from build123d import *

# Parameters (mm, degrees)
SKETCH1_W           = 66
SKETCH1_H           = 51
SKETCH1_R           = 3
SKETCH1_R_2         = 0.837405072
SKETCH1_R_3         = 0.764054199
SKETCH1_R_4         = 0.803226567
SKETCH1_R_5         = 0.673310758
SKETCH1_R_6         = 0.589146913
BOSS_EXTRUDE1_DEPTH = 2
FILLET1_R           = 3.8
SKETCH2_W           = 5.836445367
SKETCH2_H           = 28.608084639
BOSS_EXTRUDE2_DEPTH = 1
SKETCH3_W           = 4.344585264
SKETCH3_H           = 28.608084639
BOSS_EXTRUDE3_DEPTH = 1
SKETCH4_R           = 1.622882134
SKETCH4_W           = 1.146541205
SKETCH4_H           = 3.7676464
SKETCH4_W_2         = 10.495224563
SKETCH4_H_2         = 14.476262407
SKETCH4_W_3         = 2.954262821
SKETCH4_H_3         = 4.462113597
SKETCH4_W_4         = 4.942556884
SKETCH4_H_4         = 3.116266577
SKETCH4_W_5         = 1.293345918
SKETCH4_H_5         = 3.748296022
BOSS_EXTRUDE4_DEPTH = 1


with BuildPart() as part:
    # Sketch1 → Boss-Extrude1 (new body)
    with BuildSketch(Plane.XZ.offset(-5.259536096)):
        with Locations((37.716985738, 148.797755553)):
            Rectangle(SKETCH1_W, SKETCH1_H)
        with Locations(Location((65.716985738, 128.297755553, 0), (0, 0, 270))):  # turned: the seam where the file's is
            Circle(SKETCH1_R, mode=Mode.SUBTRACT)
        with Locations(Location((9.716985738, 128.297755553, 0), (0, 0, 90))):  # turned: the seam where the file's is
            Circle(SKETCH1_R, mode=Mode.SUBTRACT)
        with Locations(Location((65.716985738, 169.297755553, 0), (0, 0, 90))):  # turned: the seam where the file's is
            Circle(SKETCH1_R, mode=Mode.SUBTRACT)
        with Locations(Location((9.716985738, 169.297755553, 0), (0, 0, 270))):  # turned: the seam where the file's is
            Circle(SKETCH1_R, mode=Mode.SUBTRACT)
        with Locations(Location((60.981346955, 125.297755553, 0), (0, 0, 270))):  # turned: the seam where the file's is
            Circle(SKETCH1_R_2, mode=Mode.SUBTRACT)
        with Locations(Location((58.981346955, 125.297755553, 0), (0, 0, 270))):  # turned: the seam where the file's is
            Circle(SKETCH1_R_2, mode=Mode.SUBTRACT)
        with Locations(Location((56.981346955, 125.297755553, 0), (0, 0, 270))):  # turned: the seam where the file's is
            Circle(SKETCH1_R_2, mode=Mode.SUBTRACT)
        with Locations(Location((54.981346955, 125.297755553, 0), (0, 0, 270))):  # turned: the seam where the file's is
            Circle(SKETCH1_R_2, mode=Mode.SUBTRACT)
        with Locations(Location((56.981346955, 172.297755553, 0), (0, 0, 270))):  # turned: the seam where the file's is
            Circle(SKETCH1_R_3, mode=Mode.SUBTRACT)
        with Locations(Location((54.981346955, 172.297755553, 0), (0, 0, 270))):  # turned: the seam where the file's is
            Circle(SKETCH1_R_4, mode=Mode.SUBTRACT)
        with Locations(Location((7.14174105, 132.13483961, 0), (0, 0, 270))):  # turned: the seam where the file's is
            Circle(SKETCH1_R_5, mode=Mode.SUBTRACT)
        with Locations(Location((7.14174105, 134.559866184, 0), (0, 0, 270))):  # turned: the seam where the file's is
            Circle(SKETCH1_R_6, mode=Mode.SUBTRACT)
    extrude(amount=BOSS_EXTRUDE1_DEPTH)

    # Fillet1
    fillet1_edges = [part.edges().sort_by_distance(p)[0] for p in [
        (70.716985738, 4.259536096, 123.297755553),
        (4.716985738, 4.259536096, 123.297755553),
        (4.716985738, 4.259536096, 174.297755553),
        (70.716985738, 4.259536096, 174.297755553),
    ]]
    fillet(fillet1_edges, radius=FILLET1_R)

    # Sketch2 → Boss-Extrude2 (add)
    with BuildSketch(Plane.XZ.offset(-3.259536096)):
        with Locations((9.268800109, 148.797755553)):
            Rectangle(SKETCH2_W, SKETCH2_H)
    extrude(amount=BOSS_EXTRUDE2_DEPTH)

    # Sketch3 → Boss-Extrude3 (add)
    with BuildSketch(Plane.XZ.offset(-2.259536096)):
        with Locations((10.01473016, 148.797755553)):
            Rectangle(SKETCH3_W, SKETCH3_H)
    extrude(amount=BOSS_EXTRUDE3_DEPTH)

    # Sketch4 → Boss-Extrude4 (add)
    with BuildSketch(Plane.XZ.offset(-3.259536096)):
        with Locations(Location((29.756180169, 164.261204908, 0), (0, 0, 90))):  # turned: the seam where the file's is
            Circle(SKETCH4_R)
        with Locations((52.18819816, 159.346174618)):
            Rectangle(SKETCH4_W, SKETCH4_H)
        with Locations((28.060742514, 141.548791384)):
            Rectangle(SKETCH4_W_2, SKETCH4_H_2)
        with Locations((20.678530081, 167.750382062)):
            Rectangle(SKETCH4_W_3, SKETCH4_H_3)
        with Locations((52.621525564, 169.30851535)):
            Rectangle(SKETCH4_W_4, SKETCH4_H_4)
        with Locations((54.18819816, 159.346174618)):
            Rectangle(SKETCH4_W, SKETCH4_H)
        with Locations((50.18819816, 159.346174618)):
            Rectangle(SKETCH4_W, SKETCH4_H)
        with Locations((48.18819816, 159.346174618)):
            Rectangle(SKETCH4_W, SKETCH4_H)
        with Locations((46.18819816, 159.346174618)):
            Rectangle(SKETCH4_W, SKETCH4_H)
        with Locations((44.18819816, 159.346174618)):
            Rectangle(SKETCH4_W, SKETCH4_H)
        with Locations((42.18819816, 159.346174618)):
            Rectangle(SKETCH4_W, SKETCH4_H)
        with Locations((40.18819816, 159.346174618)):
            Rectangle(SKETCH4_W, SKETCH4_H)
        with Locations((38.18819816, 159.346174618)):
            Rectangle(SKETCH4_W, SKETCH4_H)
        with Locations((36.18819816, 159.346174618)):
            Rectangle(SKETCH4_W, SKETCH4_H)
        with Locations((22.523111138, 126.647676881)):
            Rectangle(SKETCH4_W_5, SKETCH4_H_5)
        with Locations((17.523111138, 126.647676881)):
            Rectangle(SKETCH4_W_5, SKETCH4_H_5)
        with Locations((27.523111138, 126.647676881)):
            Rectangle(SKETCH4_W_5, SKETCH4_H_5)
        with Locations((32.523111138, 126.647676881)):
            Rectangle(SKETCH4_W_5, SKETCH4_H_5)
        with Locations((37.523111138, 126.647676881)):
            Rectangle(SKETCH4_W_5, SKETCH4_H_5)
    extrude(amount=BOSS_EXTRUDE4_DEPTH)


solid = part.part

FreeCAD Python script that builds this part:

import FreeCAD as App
import Part
import Sketcher
from FreeCAD import Vector
Q = App.Units.Quantity


def edges_at(feature, points):
    """Names of the edges that pass closest to the given points."""
    edges = feature.Shape.Edges
    near = lambda p: min(range(len(edges)), key=lambda i: edges[i].distToShape(Part.Vertex(*p))[0])
    return sorted({f"Edge{near(p) + 1}" for p in points})


def add_polygon(sketch, points):
    """Adds a closed chain of lines whose ends are joined by coincident constraints."""
    first, n = sketch.GeometryCount, len(points)
    for a, b in zip(points, points[1:] + points[:1]):
        sketch.addGeometry(Part.LineSegment(App.Vector(*a, 0), App.Vector(*b, 0)), False)
    for i in range(n):
        sketch.addConstraint(Sketcher.Constraint("Coincident", first + i, 2, first + (i + 1) % n, 1))

doc = App.newDocument("Part")
body = doc.addObject("PartDesign::Body", "Body")

# Sketch on XZ plane
sketch1 = doc.addObject("Sketcher::SketchObject", "Sketch")
body.addObject(sketch1)
sketch1.AttachmentSupport = (doc.XZ_Plane, [""])
sketch1.MapMode = "FlatFace"
sketch1.AttachmentOffset = App.Placement(Vector(0, 0, -5.259536), App.Rotation())
add_polygon(sketch1, [(4.7, 174.3), (4.7, 123.3), (70.7, 123.3), (70.7, 174.3)])  # lines 0-3
sketch1.addGeometry(Part.Circle(Vector(9.7, 128.3, 0), Vector(0, 0, 1), 3), False)  # 4
sketch1.addGeometry(Part.Circle(Vector(7.1, 132.1, 0), Vector(0, 0, 1), 0.7), False)  # 5
sketch1.addGeometry(Part.Circle(Vector(7.1, 134.6, 0), Vector(0, 0, 1), 0.6), False)  # 6
sketch1.addGeometry(Part.Circle(Vector(55, 125.3, 0), Vector(0, 0, 1), 0.8), False)  # 7
sketch1.addGeometry(Part.Circle(Vector(57, 125.3, 0), Vector(0, 0, 1), 0.8), False)  # 8
sketch1.addGeometry(Part.Circle(Vector(59, 125.3, 0), Vector(0, 0, 1), 0.8), False)  # 9
sketch1.addGeometry(Part.Circle(Vector(61, 125.3, 0), Vector(0, 0, 1), 0.8), False)  # 10
sketch1.addGeometry(Part.Circle(Vector(65.7, 128.3, 0), Vector(0, 0, 1), 3), False)  # 11
sketch1.addGeometry(Part.Circle(Vector(9.7, 169.3, 0), Vector(0, 0, 1), 3), False)  # 12
sketch1.addGeometry(Part.Circle(Vector(55, 172.3, 0), Vector(0, 0, 1), 0.8), False)  # 13
sketch1.addGeometry(Part.Circle(Vector(57, 172.3, 0), Vector(0, 0, 1), 0.8), False)  # 14
sketch1.addGeometry(Part.Circle(Vector(65.7, 169.3, 0), Vector(0, 0, 1), 3), False)  # 15
sketch1.addConstraint([
    Sketcher.Constraint("Vertical", 0),
    Sketcher.Constraint("Horizontal", 1),
    Sketcher.Constraint("Vertical", 2),
    Sketcher.Constraint("Horizontal", 3),
    Sketcher.Constraint("Equal", 7, 8),
    Sketcher.Constraint("Equal", 8, 9),
    Sketcher.Constraint("Equal", 9, 10),
    Sketcher.Constraint("Equal", 4, 11),
    Sketcher.Constraint("Equal", 11, 12),
    Sketcher.Constraint("Equal", 12, 15),
    Sketcher.Constraint("Horizontal", 7, 3, 8, 3),
    Sketcher.Constraint("Horizontal", 8, 3, 9, 3),
    Sketcher.Constraint("Horizontal", 9, 3, 10, 3),
    Sketcher.Constraint("Horizontal", 4, 3, 11, 3),
    Sketcher.Constraint("Horizontal", 13, 3, 14, 3),
    Sketcher.Constraint("Horizontal", 12, 3, 15, 3),
    Sketcher.Constraint("Vertical", 5, 3, 6, 3),
    Sketcher.Constraint("Vertical", 4, 3, 12, 3),
    Sketcher.Constraint("Vertical", 7, 3, 13, 3),
    Sketcher.Constraint("Vertical", 8, 3, 14, 3),
    Sketcher.Constraint("Vertical", 11, 3, 15, 3),
    Sketcher.Constraint("Diameter", 4, Q("6 mm")),
    Sketcher.Constraint("DistanceX", 1, 1, 1, 2, Q("66 mm")),
    Sketcher.Constraint("DistanceY", 0, 2, 0, 1, Q("51 mm")),
    Sketcher.Constraint("DistanceY", 7, 3, 4, 3, Q("3 mm")),
    Sketcher.Constraint("DistanceX", 7, 3, 8, 3, Q("2 mm")),
    Sketcher.Constraint("DistanceX", 8, 3, 9, 3, Q("2 mm")),
    Sketcher.Constraint("DistanceX", 9, 3, 10, 3, Q("2 mm")),
    Sketcher.Constraint("DistanceX", 4, 3, 11, 3, Q("56 mm")),
    Sketcher.Constraint("DistanceY", 4, 3, 12, 3, Q("41 mm")),
    Sketcher.Constraint("DistanceY", 11, 3, 13, 3, Q("44 mm")),
    Sketcher.Constraint("DistanceX", 0, 2, 4, 3, Q("5 mm")),
    Sketcher.Constraint("DistanceY", 0, 2, 4, 3, Q("5 mm")),
    Sketcher.Constraint("Diameter", 5, Q("1.346622 mm")),
    Sketcher.Constraint("Diameter", 7, Q("1.67481 mm")),
    Sketcher.Constraint("Diameter", 14, Q("1.528108 mm")),
    Sketcher.Constraint("Diameter", 6, Q("1.178294 mm")),
    Sketcher.Constraint("Diameter", 13, Q("1.606453 mm")),
    Sketcher.Constraint("DistanceX", -1, 1, 5, 3, Q("7.141741 mm")),
    Sketcher.Constraint("DistanceY", -1, 1, 5, 3, Q("132.13484 mm")),
    Sketcher.Constraint("DistanceY", 4, 3, 6, 3, Q("6.262111 mm")),
    Sketcher.Constraint("DistanceX", 4, 3, 7, 3, Q("45.264361 mm")),
    Sketcher.Constraint("DistanceX", -1, 1, 4, 3, Q("9.716986 mm")),
    Sketcher.Constraint("DistanceY", -1, 1, 4, 3, Q("128.297756 mm")),
])
pad1 = doc.addObject("PartDesign::Pad", "Pad")
body.addObject(pad1)
pad1.Profile = sketch1
pad1.Length = 2
doc.recompute()

fillet = doc.addObject("PartDesign::Fillet", "Fillet")
body.addObject(fillet)
fillet.Base = (pad1, edges_at(pad1, [
    (70.717, 4.26, 123.298),
    (4.717, 4.26, 123.298),
    (4.717, 4.26, 174.298),
    (70.717, 4.26, 174.298),
]))
fillet.Radius = 3.8

# Sketch on XZ plane
sketch2 = doc.addObject("Sketcher::SketchObject", "Sketch001")
body.addObject(sketch2)
sketch2.AttachmentSupport = (doc.XZ_Plane, [""])
sketch2.MapMode = "FlatFace"
sketch2.AttachmentOffset = App.Placement(Vector(0, 0, -3.259536), App.Rotation())
add_polygon(sketch2, [(6, 163), (6, 134), (12, 134), (12, 163)])  # lines 0-3
sketch2.addConstraint([
    Sketcher.Constraint("Vertical", 0),
    Sketcher.Constraint("Horizontal", 1),
    Sketcher.Constraint("Vertical", 2),
    Sketcher.Constraint("Horizontal", 3),
    Sketcher.Constraint("DistanceX", 1, 1, 1, 2, Q("5.836445 mm")),
    Sketcher.Constraint("DistanceY", 0, 2, 0, 1, Q("28.608085 mm")),
    Sketcher.Constraint("DistanceX", -1, 1, 0, 2, Q("6.350577 mm")),
    Sketcher.Constraint("DistanceY", -1, 1, 0, 2, Q("134.493713 mm")),
])
pad2 = doc.addObject("PartDesign::Pad", "Pad001")
body.addObject(pad2)
pad2.Profile = sketch2
pad2.Length = 1

# Sketch on XZ plane
sketch3 = doc.addObject("Sketcher::SketchObject", "Sketch002")
body.addObject(sketch3)
sketch3.AttachmentSupport = (doc.XZ_Plane, [""])
sketch3.MapMode = "FlatFace"
sketch3.AttachmentOffset = App.Placement(Vector(0, 0, -2.259536), App.Rotation())
add_polygon(sketch3, [(7.8, 163.1), (7.8, 134.5), (12.2, 134.5), (12.2, 163.1)])  # lines 0-3
sketch3.addConstraint([
    Sketcher.Constraint("Vertical", 0),
    Sketcher.Constraint("Horizontal", 1),
    Sketcher.Constraint("Vertical", 2),
    Sketcher.Constraint("Horizontal", 3),
    Sketcher.Constraint("DistanceX", 1, 1, 1, 2, Q("4.344585 mm")),
    Sketcher.Constraint("DistanceY", 0, 2, 0, 1, Q("28.608085 mm")),
    Sketcher.Constraint("DistanceX", -1, 1, 0, 2, Q("7.842438 mm")),
    Sketcher.Constraint("DistanceY", -1, 1, 0, 2, Q("134.493713 mm")),
])
pad3 = doc.addObject("PartDesign::Pad", "Pad002")
body.addObject(pad3)
pad3.Profile = sketch3
pad3.Length = 1

# Sketch on XZ plane
sketch4 = doc.addObject("Sketcher::SketchObject", "Sketch003")
body.addObject(sketch4)
sketch4.AttachmentSupport = (doc.XZ_Plane, [""])
sketch4.MapMode = "FlatFace"
sketch4.AttachmentOffset = App.Placement(Vector(0, 0, -3.259536), App.Rotation())
sketch4.addGeometry(Part.Circle(Vector(29.8, 164.3, 0), Vector(0, 0, 1), 1.6), False)  # 0
add_polygon(sketch4, [(51.6, 161.2), (51.6, 157.5), (52.8, 157.5), (52.8, 161.2)])  # lines 1-4
add_polygon(sketch4, [(22.8, 148.8), (22.8, 134.3), (33.3, 134.3), (33.3, 148.8)])  # lines 5-8
add_polygon(sketch4, [(19.2, 170), (19.2, 165.5), (22.2, 165.5), (22.2, 170)])  # lines 9-12
add_polygon(sketch4, [(50.2, 170.9), (50.2, 167.8), (55.1, 167.8), (55.1, 170.9)])  # lines 13-16
add_polygon(sketch4, [(53.6, 161.2), (53.6, 157.5), (54.8, 157.5), (54.8, 161.2)])  # lines 17-20
add_polygon(sketch4, [(49.6, 161.2), (49.6, 157.5), (50.8, 157.5), (50.8, 161.2)])  # lines 21-24
add_polygon(sketch4, [(47.6, 161.2), (47.6, 157.5), (48.8, 157.5), (48.8, 161.2)])  # lines 25-28
add_polygon(sketch4, [(45.6, 161.2), (45.6, 157.5), (46.8, 157.5), (46.8, 161.2)])  # lines 29-32
add_polygon(sketch4, [(43.6, 161.2), (43.6, 157.5), (44.8, 157.5), (44.8, 161.2)])  # lines 33-36
add_polygon(sketch4, [(41.6, 161.2), (41.6, 157.5), (42.8, 157.5), (42.8, 161.2)])  # lines 37-40
add_polygon(sketch4, [(39.6, 161.2), (39.6, 157.5), (40.8, 157.5), (40.8, 161.2)])  # lines 41-44
add_polygon(sketch4, [(37.6, 161.2), (37.6, 157.5), (38.8, 157.5), (38.8, 161.2)])  # lines 45-48
add_polygon(sketch4, [(35.6, 161.2), (35.6, 157.5), (36.8, 157.5), (36.8, 161.2)])  # lines 49-52
add_polygon(sketch4, [(21.9, 128.5), (21.9, 124.8), (23.2, 124.8), (23.2, 128.5)])  # lines 53-56
add_polygon(sketch4, [(16.9, 128.5), (16.9, 124.8), (18.2, 124.8), (18.2, 128.5)])  # lines 57-60
add_polygon(sketch4, [(26.9, 128.5), (26.9, 124.8), (28.2, 124.8), (28.2, 128.5)])  # lines 61-64
add_polygon(sketch4, [(31.9, 128.5), (31.9, 124.8), (33.2, 124.8), (33.2, 128.5)])  # lines 65-68
add_polygon(sketch4, [(36.9, 128.5), (36.9, 124.8), (38.2, 124.8), (38.2, 128.5)])  # lines 69-72
sketch4.addConstraint([
    Sketcher.Constraint("Vertical", 1),
    Sketcher.Constraint("Horizontal", 2),
    Sketcher.Constraint("Vertical", 3),
    Sketcher.Constraint("Horizontal", 4),
    Sketcher.Constraint("Vertical", 5),
    Sketcher.Constraint("Horizontal", 6),
    Sketcher.Constraint("Vertical", 7),
    Sketcher.Constraint("Horizontal", 8),
    Sketcher.Constraint("Vertical", 9),
    Sketcher.Constraint("Horizontal", 10),
    Sketcher.Constraint("Vertical", 11),
    Sketcher.Constraint("Horizontal", 12),
    Sketcher.Constraint("Vertical", 13),
    Sketcher.Constraint("Horizontal", 14),
    Sketcher.Constraint("Vertical", 15),
    Sketcher.Constraint("Horizontal", 16),
    Sketcher.Constraint("Vertical", 17),
    Sketcher.Constraint("Horizontal", 18),
    Sketcher.Constraint("Vertical", 19),
    Sketcher.Constraint("Horizontal", 20),
    Sketcher.Constraint("Vertical", 21),
    Sketcher.Constraint("Horizontal", 22),
    Sketcher.Constraint("Vertical", 23),
    Sketcher.Constraint("Horizontal", 24),
    Sketcher.Constraint("Vertical", 25),
    Sketcher.Constraint("Horizontal", 26),
    Sketcher.Constraint("Vertical", 27),
    Sketcher.Constraint("Horizontal", 28),
    Sketcher.Constraint("Vertical", 29),
    Sketcher.Constraint("Horizontal", 30),
    Sketcher.Constraint("Vertical", 31),
    Sketcher.Constraint("Horizontal", 32),
    Sketcher.Constraint("Vertical", 33),
    Sketcher.Constraint("Horizontal", 34),
    Sketcher.Constraint("Vertical", 35),
    Sketcher.Constraint("Horizontal", 36),
    Sketcher.Constraint("Vertical", 37),
    Sketcher.Constraint("Horizontal", 38),
    Sketcher.Constraint("Vertical", 39),
    Sketcher.Constraint("Horizontal", 40),
    Sketcher.Constraint("Vertical", 41),
    Sketcher.Constraint("Horizontal", 42),
    Sketcher.Constraint("Vertical", 43),
    Sketcher.Constraint("Horizontal", 44),
    Sketcher.Constraint("Vertical", 45),
    Sketcher.Constraint("Horizontal", 46),
    Sketcher.Constraint("Vertical", 47),
    Sketcher.Constraint("Horizontal", 48),
    Sketcher.Constraint("Vertical", 49),
    Sketcher.Constraint("Horizontal", 50),
    Sketcher.Constraint("Vertical", 51),
    Sketcher.Constraint("Horizontal", 52),
    Sketcher.Constraint("Vertical", 53),
    Sketcher.Constraint("Horizontal", 54),
    Sketcher.Constraint("Vertical", 55),
    Sketcher.Constraint("Horizontal", 56),
    Sketcher.Constraint("Vertical", 57),
    Sketcher.Constraint("Horizontal", 58),
    Sketcher.Constraint("Vertical", 59),
    Sketcher.Constraint("Horizontal", 60),
    Sketcher.Constraint("Vertical", 61),
    Sketcher.Constraint("Horizontal", 62),
    Sketcher.Constraint("Vertical", 63),
    Sketcher.Constraint("Horizontal", 64),
    Sketcher.Constraint("Vertical", 65),
    Sketcher.Constraint("Horizontal", 66),
    Sketcher.Constraint("Vertical", 67),
    Sketcher.Constraint("Horizontal", 68),
    Sketcher.Constraint("Vertical", 69),
    Sketcher.Constraint("Horizontal", 70),
    Sketcher.Constraint("Vertical", 71),
    Sketcher.Constraint("Horizontal", 72),
    Sketcher.Constraint("Horizontal", 2, 2, 17, 2),
    Sketcher.Constraint("Horizontal", 4, 2, 19, 2),
    Sketcher.Constraint("Horizontal", 18, 2, 21, 2),
    Sketcher.Constraint("Horizontal", 20, 2, 23, 2),
    Sketcher.Constraint("Horizontal", 22, 2, 25, 2),
    Sketcher.Constraint("Horizontal", 24, 2, 27, 2),
    Sketcher.Constraint("Horizontal", 26, 2, 29, 2),
    Sketcher.Constraint("Horizontal", 28, 2, 31, 2),
    Sketcher.Constraint("Horizontal", 30, 2, 33, 2),
    Sketcher.Constraint("Horizontal", 32, 2, 35, 2),
    Sketcher.Constraint("Horizontal", 34, 2, 37, 2),
    Sketcher.Constraint("Horizontal", 36, 2, 39, 2),
    Sketcher.Constraint("Horizontal", 38, 2, 41, 2),
    Sketcher.Constraint("Horizontal", 40, 2, 43, 2),
    Sketcher.Constraint("Horizontal", 42, 2, 45, 2),
    Sketcher.Constraint("Horizontal", 44, 2, 47, 2),
    Sketcher.Constraint("Horizontal", 46, 2, 49, 2),
    Sketcher.Constraint("Horizontal", 48, 2, 51, 2),
    Sketcher.Constraint("Horizontal", 54, 2, 57, 2),
    Sketcher.Constraint("Horizontal", 56, 2, 59, 2),
    Sketcher.Constraint("Horizontal", 58, 2, 61, 2),
    Sketcher.Constraint("Horizontal", 60, 2, 63, 2),
    Sketcher.Constraint("Horizontal", 62, 2, 65, 2),
    Sketcher.Constraint("Horizontal", 64, 2, 67, 2),
    Sketcher.Constraint("Horizontal", 66, 2, 69, 2),
    Sketcher.Constraint("Horizontal", 68, 2, 71, 2),
    Sketcher.Constraint("Equal", 4, 18),
    Sketcher.Constraint("Equal", 20, 22),
    Sketcher.Constraint("Equal", 24, 26),
    Sketcher.Constraint("Equal", 28, 30),
    Sketcher.Constraint("Equal", 32, 34),
    Sketcher.Constraint("Equal", 36, 38),
    Sketcher.Constraint("Equal", 40, 42),
    Sketcher.Constraint("Equal", 44, 46),
    Sketcher.Constraint("Equal", 48, 50),
    Sketcher.Constraint("Equal", 56, 58),
    Sketcher.Constraint("Equal", 60, 62),
    Sketcher.Constraint("Equal", 64, 66),
    Sketcher.Constraint("Equal", 68, 70),
    Sketcher.Constraint("Diameter", 0, Q("3.245764 mm")),
    Sketcher.Constraint("DistanceX", 2, 1, 2, 2, Q("1.146541 mm")),
    Sketcher.Constraint("DistanceX", -1, 1, 9, 2, Q("19.201399 mm")),
    Sketcher.Constraint("DistanceX", 6, 1, 6, 2, Q("10.495225 mm")),
    Sketcher.Constraint("DistanceX", 10, 1, 10, 2, Q("2.954263 mm")),
    Sketcher.Constraint("DistanceX", 14, 1, 14, 2, Q("4.942557 mm")),
    Sketcher.Constraint("DistanceX", 54, 1, 54, 2, Q("1.293346 mm")),
    Sketcher.Constraint("DistanceY", 1, 2, 1, 1, Q("3.767646 mm")),
    Sketcher.Constraint("DistanceY", 5, 2, 5, 1, Q("14.476262 mm")),
    Sketcher.Constraint("DistanceY", 9, 2, 9, 1, Q("4.462114 mm")),
    Sketcher.Constraint("DistanceY", 13, 2, 13, 1, Q("3.116267 mm")),
    Sketcher.Constraint("DistanceY", 53, 2, 53, 1, Q("3.748296 mm")),
    Sketcher.Constraint("DistanceX", -1, 1, 0, 3, Q("29.75618 mm")),
    Sketcher.Constraint("DistanceY", -1, 1, 1, 2, Q("157.462351 mm")),
    Sketcher.Constraint("DistanceX", -1, 1, 2, 2, Q("52.761469 mm")),
    Sketcher.Constraint("DistanceX", -1, 1, 5, 2, Q("22.81313 mm")),
    Sketcher.Constraint("DistanceY", -1, 1, 5, 2, Q("134.31066 mm")),
    Sketcher.Constraint("DistanceY", -1, 1, 11, 2, Q("169.981439 mm")),
    Sketcher.Constraint("DistanceY", -1, 1, 15, 2, Q("170.866649 mm")),
    Sketcher.Constraint("DistanceX", -1, 1, 18, 2, Q("54.761469 mm")),
    Sketcher.Constraint("DistanceX", -1, 1, 22, 2, Q("50.761469 mm")),
    Sketcher.Constraint("DistanceX", -1, 1, 26, 2, Q("48.761469 mm")),
    Sketcher.Constraint("DistanceX", -1, 1, 30, 2, Q("46.761469 mm")),
    Sketcher.Constraint("DistanceX", -1, 1, 34, 2, Q("44.761469 mm")),
    Sketcher.Constraint("DistanceX", -1, 1, 38, 2, Q("42.761469 mm")),
    Sketcher.Constraint("DistanceX", -1, 1, 42, 2, Q("40.761469 mm")),
    Sketcher.Constraint("DistanceX", -1, 1, 46, 2, Q("38.761469 mm")),
    Sketcher.Constraint("DistanceX", -1, 1, 50, 2, Q("36.761469 mm")),
    Sketcher.Constraint("DistanceX", -1, 1, 53, 2, Q("21.876438 mm")),
    Sketcher.Constraint("DistanceY", -1, 1, 53, 2, Q("124.773529 mm")),
    Sketcher.Constraint("DistanceX", -1, 1, 57, 2, Q("16.876438 mm")),
    Sketcher.Constraint("DistanceX", -1, 1, 61, 2, Q("26.876438 mm")),
    Sketcher.Constraint("DistanceX", -1, 1, 65, 2, Q("31.876438 mm")),
    Sketcher.Constraint("DistanceX", -1, 1, 69, 2, Q("36.876438 mm")),
    Sketcher.Constraint("DistanceY", -1, 1, 0, 3, Q("164.261205 mm")),
    Sketcher.Constraint("DistanceX", -1, 1, 13, 2, Q("50.150247 mm")),
])
pad4 = doc.addObject("PartDesign::Pad", "Pad003")
body.addObject(pad4)
pad4.Profile = sketch4
pad4.Length = 1

doc.recompute()
